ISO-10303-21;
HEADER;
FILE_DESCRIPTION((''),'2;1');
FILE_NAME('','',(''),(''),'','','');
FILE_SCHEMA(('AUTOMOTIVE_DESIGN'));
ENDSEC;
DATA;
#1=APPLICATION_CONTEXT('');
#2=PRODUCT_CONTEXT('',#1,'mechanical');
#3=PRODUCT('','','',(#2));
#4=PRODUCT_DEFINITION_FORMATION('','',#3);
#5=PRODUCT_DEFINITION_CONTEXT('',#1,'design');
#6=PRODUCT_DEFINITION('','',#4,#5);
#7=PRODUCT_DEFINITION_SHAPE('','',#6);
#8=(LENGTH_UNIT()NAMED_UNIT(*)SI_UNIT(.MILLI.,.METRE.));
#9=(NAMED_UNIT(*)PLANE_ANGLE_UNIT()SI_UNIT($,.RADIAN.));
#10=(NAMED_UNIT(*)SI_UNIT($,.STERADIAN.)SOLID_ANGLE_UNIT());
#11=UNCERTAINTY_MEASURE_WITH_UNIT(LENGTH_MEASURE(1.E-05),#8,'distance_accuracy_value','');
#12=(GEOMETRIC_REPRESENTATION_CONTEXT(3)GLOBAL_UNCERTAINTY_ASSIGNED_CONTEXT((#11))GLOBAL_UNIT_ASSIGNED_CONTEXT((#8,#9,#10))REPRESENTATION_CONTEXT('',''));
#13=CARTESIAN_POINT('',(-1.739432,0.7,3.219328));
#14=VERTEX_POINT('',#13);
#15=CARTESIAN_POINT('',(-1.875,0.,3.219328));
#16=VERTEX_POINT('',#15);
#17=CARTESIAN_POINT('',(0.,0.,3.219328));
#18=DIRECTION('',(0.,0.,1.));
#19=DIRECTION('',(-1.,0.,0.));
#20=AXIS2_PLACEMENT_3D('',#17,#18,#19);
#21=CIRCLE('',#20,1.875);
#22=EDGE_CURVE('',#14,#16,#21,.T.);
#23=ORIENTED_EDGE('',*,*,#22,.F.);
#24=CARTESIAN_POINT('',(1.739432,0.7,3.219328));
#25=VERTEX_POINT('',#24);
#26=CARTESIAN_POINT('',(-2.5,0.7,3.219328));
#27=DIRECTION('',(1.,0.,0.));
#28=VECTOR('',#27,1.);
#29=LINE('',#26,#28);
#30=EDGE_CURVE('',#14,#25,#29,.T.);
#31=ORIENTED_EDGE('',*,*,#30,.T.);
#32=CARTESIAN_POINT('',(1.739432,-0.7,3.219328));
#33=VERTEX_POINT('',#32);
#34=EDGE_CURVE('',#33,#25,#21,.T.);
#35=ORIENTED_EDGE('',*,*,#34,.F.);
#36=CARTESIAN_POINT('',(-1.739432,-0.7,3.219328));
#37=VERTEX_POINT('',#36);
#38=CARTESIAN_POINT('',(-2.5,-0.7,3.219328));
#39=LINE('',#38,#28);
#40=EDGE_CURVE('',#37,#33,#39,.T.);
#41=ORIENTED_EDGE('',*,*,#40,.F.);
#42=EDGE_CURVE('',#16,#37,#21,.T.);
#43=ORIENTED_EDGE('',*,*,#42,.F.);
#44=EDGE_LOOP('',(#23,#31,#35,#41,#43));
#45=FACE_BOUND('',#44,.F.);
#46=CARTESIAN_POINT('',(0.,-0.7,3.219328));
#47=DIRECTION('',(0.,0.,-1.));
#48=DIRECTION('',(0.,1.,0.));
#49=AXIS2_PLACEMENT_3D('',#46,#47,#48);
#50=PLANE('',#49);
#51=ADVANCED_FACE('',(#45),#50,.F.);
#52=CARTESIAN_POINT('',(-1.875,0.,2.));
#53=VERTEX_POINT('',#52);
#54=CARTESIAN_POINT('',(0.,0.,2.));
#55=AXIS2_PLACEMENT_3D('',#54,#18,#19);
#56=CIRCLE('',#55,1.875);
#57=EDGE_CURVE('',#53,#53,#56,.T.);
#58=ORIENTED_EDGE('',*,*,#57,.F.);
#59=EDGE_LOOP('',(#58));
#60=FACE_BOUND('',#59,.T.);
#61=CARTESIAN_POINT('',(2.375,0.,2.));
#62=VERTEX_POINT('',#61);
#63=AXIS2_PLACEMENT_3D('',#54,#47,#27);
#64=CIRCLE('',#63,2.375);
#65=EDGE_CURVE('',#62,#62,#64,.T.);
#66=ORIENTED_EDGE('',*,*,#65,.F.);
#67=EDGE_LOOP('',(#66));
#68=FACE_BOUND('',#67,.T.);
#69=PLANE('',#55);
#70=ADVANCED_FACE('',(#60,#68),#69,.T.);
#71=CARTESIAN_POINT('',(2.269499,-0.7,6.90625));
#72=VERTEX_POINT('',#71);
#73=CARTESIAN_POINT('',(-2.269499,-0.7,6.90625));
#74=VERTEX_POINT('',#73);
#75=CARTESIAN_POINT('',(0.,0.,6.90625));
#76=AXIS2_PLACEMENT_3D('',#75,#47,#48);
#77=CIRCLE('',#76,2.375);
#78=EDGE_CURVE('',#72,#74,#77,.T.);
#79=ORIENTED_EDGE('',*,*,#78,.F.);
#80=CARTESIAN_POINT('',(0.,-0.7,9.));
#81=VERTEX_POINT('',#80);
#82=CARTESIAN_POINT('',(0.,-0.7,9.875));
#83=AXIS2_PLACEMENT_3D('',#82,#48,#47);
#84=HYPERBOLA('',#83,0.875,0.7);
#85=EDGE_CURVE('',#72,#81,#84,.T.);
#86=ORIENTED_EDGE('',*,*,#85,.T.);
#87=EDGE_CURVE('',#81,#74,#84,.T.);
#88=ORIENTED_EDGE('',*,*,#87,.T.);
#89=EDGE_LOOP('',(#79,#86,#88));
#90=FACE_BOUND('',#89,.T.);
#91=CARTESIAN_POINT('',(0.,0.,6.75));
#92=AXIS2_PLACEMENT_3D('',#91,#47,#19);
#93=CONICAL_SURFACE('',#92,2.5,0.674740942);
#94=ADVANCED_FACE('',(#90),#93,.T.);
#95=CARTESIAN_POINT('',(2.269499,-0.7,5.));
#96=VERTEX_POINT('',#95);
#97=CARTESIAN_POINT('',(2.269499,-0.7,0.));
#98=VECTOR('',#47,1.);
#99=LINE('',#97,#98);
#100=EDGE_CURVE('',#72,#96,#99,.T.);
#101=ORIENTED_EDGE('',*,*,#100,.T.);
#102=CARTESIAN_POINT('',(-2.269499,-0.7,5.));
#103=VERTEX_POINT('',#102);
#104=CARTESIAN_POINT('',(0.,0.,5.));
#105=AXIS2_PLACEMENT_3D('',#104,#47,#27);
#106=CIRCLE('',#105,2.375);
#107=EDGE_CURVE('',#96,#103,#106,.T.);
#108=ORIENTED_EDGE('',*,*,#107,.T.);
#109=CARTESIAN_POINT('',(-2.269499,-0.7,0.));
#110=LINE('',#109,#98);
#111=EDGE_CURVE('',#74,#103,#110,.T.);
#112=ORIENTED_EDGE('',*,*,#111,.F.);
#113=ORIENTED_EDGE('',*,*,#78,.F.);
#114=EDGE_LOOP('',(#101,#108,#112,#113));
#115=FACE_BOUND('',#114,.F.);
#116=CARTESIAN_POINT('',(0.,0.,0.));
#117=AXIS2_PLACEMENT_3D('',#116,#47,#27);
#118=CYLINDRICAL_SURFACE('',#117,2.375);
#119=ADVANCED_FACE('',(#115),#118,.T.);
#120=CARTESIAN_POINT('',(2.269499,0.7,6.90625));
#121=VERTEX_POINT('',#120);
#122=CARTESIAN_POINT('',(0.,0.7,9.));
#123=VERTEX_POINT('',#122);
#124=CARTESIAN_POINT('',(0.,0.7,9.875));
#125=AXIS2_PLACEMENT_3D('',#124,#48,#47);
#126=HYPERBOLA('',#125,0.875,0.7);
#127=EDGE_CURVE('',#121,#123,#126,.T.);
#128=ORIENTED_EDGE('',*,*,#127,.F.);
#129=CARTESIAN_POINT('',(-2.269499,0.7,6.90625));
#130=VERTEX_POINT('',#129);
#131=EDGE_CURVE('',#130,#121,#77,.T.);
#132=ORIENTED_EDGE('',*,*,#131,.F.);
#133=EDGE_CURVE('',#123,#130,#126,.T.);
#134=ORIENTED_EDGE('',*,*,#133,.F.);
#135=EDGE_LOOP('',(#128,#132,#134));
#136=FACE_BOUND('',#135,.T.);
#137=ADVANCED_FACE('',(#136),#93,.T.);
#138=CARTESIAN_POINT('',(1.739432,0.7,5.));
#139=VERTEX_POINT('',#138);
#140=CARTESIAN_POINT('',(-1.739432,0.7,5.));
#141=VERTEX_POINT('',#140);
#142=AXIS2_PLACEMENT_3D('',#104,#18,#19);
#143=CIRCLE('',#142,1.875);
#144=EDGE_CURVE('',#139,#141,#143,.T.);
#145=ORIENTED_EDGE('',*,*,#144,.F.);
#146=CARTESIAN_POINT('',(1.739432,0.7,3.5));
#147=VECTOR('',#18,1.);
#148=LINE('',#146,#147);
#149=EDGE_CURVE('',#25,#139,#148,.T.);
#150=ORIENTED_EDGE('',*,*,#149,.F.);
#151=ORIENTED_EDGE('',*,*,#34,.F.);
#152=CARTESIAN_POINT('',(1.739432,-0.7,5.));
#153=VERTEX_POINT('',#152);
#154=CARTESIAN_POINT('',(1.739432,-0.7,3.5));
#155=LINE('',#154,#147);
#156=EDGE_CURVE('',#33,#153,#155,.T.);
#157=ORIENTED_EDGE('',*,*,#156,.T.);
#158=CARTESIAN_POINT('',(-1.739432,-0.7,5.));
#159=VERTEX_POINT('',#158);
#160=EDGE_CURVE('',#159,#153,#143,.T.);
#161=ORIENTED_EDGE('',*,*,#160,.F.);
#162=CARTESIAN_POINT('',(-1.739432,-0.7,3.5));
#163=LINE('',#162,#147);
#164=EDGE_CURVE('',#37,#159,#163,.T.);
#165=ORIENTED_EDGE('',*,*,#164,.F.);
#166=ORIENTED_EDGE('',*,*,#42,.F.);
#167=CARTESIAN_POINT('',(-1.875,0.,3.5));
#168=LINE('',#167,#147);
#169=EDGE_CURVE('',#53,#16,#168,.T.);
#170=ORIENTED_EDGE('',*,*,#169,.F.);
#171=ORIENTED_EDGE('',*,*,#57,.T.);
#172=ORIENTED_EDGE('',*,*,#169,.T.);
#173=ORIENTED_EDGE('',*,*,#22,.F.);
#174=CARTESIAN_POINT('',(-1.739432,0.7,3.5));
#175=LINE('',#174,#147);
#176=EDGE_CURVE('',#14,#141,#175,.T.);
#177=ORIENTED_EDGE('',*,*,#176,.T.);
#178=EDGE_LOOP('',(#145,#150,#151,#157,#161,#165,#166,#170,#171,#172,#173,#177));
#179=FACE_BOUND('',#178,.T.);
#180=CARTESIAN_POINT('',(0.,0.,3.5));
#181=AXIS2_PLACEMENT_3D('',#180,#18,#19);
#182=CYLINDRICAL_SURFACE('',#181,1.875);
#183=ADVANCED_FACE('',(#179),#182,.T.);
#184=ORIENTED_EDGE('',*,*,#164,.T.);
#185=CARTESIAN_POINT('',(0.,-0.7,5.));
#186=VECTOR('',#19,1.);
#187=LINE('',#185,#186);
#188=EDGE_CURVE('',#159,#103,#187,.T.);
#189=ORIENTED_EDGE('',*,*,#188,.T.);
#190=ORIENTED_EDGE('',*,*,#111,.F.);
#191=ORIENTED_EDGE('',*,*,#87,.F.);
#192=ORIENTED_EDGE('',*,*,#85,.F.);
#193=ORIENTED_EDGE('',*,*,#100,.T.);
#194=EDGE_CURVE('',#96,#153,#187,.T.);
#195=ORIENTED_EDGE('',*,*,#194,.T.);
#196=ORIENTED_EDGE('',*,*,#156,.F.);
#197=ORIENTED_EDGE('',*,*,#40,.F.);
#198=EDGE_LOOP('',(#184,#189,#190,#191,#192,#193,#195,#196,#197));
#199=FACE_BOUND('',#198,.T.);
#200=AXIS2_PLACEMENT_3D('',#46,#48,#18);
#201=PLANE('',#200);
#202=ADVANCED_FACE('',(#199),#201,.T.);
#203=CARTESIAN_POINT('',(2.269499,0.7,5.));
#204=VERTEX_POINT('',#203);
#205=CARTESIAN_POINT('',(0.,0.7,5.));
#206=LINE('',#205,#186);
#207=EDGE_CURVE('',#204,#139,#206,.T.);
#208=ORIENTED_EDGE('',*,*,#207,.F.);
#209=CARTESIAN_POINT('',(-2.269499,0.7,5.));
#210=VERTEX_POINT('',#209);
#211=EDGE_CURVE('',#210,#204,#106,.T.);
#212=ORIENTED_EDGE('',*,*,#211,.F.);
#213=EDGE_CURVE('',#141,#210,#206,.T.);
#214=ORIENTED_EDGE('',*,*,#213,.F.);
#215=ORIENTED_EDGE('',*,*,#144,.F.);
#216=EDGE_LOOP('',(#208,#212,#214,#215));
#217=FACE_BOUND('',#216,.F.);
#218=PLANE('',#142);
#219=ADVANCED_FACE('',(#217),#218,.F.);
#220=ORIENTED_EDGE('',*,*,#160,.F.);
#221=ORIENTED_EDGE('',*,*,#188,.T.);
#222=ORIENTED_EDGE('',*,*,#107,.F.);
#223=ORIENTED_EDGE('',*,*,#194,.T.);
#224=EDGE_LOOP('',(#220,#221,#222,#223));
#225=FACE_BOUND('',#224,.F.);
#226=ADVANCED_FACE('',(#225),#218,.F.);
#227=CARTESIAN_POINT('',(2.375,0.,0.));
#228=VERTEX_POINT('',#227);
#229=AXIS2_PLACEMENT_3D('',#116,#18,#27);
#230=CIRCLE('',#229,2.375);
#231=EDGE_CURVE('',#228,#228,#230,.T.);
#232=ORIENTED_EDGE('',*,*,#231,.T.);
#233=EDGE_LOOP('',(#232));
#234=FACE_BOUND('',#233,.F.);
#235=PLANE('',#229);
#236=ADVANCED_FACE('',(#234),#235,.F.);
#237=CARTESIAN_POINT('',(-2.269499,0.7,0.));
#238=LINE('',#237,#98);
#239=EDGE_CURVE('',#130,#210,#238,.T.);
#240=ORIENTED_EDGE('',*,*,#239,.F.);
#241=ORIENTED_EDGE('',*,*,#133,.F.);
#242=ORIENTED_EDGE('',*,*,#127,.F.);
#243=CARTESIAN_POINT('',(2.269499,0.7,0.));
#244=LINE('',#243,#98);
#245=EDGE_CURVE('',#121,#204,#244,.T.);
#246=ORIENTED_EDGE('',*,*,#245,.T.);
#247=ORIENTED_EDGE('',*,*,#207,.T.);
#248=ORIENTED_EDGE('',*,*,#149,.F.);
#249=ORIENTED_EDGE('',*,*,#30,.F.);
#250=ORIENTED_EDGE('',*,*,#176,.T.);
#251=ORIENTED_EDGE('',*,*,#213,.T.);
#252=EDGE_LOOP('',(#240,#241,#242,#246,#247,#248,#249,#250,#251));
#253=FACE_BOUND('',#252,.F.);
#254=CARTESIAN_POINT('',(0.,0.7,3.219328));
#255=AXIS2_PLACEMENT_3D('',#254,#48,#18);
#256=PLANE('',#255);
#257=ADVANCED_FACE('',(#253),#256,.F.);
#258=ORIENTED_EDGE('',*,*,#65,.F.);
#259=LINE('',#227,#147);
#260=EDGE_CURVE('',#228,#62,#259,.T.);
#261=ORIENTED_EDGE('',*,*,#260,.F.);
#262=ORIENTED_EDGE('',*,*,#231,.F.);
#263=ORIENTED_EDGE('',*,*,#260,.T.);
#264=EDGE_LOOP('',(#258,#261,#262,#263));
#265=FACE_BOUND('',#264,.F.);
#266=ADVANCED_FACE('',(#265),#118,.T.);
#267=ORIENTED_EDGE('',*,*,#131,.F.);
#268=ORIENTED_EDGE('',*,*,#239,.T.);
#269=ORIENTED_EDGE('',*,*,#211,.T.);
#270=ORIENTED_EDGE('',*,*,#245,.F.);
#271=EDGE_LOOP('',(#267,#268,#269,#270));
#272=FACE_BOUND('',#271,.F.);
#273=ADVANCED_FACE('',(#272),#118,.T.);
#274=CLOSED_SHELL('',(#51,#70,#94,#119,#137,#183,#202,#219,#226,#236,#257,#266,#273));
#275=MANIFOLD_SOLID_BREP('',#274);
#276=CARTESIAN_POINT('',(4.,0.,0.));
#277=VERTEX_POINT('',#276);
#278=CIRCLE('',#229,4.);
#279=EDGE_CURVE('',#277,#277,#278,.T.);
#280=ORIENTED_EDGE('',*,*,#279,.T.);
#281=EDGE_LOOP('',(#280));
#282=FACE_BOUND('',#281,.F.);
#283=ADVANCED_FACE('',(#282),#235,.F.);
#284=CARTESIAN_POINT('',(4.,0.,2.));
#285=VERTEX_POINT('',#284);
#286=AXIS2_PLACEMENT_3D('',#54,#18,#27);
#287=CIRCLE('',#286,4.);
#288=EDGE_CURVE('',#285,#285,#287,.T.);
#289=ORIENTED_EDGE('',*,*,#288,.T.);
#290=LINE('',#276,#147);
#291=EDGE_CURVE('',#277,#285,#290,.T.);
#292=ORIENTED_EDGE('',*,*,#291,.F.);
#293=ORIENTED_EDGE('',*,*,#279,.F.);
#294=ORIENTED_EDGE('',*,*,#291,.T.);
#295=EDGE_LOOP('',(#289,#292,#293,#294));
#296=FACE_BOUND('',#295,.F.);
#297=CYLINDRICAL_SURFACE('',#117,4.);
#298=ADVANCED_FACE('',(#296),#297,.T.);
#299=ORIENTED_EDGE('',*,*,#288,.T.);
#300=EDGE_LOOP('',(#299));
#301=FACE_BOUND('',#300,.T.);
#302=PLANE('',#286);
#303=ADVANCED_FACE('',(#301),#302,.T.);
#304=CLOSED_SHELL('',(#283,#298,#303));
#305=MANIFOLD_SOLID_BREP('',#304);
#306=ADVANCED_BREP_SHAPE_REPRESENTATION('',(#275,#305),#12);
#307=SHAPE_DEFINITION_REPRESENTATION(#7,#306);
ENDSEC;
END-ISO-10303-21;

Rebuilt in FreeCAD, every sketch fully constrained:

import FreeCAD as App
import Part
import Sketcher
Q = App.Units.Quantity


def add_polygon(sketch, points):
    """Adds a closed chain of lines whose ends are joined by coincident constraints."""
    first, n = sketch.GeometryCount, len(points)
    for a, b in zip(points, points[1:] + points[:1]):
        sketch.addGeometry(Part.LineSegment(App.Vector(*a, 0), App.Vector(*b, 0)), False)
    for i in range(n):
        sketch.addConstraint(Sketcher.Constraint("Coincident", first + i, 2, first + (i + 1) % n, 1))

doc = App.newDocument("Part")
body = doc.addObject("PartDesign::Body", "Body")

# Sketch on XY plane
sketch1 = body.newObject("Sketcher::SketchObject", "Sketch")
sketch1.AttachmentSupport = (doc.getObject("XY_Plane"), [""])
sketch1.MapMode = "FlatFace"
sketch1.addGeometry(Part.Circle(App.Vector(0, 0, 0), App.Vector(0, 0, 1), 4), False)
sketch1.addConstraint(Sketcher.Constraint("Coincident", 0, 3, -1, 1))
sketch1.addConstraint(Sketcher.Constraint("Diameter", 0, Q("8 mm")))
pad1 = body.newObject("PartDesign::Pad", "Pad")
pad1.Profile = sketch1
pad1.Length = 2
body2 = doc.addObject("PartDesign::Body", "Body001")

# Sketch on XY plane
sketch2 = body2.newObject("Sketcher::SketchObject", "Sketch001")
sketch2.AttachmentSupport = (doc.getObject("XY_Plane001"), [""])
sketch2.MapMode = "FlatFace"
sketch2.addGeometry(Part.Circle(App.Vector(0, 0, 0), App.Vector(0, 0, 1), 2.4), False)
sketch2.addConstraint(Sketcher.Constraint("Coincident", 0, 3, -1, 1))
sketch2.addConstraint(Sketcher.Constraint("Diameter", 0, Q("4.75 mm")))
pad2 = body2.newObject("PartDesign::Pad", "Pad001")
pad2.Profile = sketch2
pad2.Length = 9

# Sketch on XZ plane
sketch3 = body2.newObject("Sketcher::SketchObject", "Sketch002")
sketch3.AttachmentSupport = (doc.getObject("XZ_Plane001"), [""])
sketch3.MapMode = "FlatFace"
add_polygon(sketch3, [(-3.9, 5), (-3.9, 2), (-1.9, 2), (-1.9, 5)])  # lines 0-3
sketch3.addConstraint(Sketcher.Constraint("Vertical", 0))
sketch3.addConstraint(Sketcher.Constraint("Horizontal", 1))
sketch3.addConstraint(Sketcher.Constraint("Vertical", 2))
sketch3.addConstraint(Sketcher.Constraint("Horizontal", 3))
sketch3.addConstraint(Sketcher.Constraint("DistanceX", 1, 1, 1, 2, Q("2 mm")))
sketch3.addConstraint(Sketcher.Constraint("DistanceY", 0, 2, 0, 1, Q("3 mm")))
sketch3.addConstraint(Sketcher.Constraint("DistanceY", -1, 1, 0, 2, Q("2 mm")))
sketch3.addConstraint(Sketcher.Constraint("DistanceX", 0, 2, -1, 1, Q("3.875 mm")))
groove = body2.newObject("PartDesign::Groove", "Groove")
groove.Profile = sketch3
groove.ReferenceAxis = (sketch3, ["V_Axis"])
groove.Angle = 360

# Sketch on XZ plane
sketch4 = body2.newObject("Sketcher::SketchObject", "Sketch003")
sketch4.AttachmentSupport = (doc.getObject("XZ_Plane001"), [""])
sketch4.MapMode = "FlatFace"
add_polygon(sketch4, [(-2.5, 6.8), (-0.5, 9.2), (-2.5, 9.2)])  # lines 0-2
sketch4.addConstraint(Sketcher.Constraint("Horizontal", 1))
sketch4.addConstraint(Sketcher.Constraint("Vertical", 2))
sketch4.addConstraint(Sketcher.Constraint("DistanceX", 1, 2, 1, 1, Q("2 mm")))
sketch4.addConstraint(Sketcher.Constraint("DistanceY", 2, 2, 2, 1, Q("2.5 mm")))
sketch4.addConstraint(Sketcher.Constraint("DistanceX", 0, 2, -1, 1, Q("0.5 mm")))
sketch4.addConstraint(Sketcher.Constraint("DistanceY", -1, 1, 0, 2, Q("9.25 mm")))
groove2 = body2.newObject("PartDesign::Groove", "Groove001")
groove2.Profile = sketch4
groove2.ReferenceAxis = (sketch4, ["V_Axis"])
groove2.Angle = 360

# Sketch on YZ plane
sketch5 = body2.newObject("Sketcher::SketchObject", "Sketch004")
sketch5.AttachmentSupport = (doc.getObject("YZ_Plane001"), [""])
sketch5.MapMode = "FlatFace"
add_polygon(sketch5, [(-0.7, 9.7), (-0.7, 3.2), (0.7, 3.2), (0.7, 9.7)])  # lines 0-3
sketch5.addConstraint(Sketcher.Constraint("Vertical", 0))
sketch5.addConstraint(Sketcher.Constraint("Horizontal", 1))
sketch5.addConstraint(Sketcher.Constraint("Vertical", 2))
sketch5.addConstraint(Sketcher.Constraint("Horizontal", 3))
sketch5.addConstraint(Sketcher.Constraint("DistanceX", 1, 1, 1, 2, Q("1.4 mm")))
sketch5.addConstraint(Sketcher.Constraint("DistanceY", 0, 2, 0, 1, Q("6.5 mm")))
sketch5.addConstraint(Sketcher.Constraint("DistanceX", 0, 2, -1, 1, Q("0.7 mm")))
sketch5.addConstraint(Sketcher.Constraint("DistanceY", -1, 1, 0, 2, Q("3.219328 mm")))
pocket1 = body2.newObject("PartDesign::Pocket", "Pocket")
pocket1.Profile = sketch5
pocket1.Length = 5
pocket1.Midplane = True

doc.recompute()
